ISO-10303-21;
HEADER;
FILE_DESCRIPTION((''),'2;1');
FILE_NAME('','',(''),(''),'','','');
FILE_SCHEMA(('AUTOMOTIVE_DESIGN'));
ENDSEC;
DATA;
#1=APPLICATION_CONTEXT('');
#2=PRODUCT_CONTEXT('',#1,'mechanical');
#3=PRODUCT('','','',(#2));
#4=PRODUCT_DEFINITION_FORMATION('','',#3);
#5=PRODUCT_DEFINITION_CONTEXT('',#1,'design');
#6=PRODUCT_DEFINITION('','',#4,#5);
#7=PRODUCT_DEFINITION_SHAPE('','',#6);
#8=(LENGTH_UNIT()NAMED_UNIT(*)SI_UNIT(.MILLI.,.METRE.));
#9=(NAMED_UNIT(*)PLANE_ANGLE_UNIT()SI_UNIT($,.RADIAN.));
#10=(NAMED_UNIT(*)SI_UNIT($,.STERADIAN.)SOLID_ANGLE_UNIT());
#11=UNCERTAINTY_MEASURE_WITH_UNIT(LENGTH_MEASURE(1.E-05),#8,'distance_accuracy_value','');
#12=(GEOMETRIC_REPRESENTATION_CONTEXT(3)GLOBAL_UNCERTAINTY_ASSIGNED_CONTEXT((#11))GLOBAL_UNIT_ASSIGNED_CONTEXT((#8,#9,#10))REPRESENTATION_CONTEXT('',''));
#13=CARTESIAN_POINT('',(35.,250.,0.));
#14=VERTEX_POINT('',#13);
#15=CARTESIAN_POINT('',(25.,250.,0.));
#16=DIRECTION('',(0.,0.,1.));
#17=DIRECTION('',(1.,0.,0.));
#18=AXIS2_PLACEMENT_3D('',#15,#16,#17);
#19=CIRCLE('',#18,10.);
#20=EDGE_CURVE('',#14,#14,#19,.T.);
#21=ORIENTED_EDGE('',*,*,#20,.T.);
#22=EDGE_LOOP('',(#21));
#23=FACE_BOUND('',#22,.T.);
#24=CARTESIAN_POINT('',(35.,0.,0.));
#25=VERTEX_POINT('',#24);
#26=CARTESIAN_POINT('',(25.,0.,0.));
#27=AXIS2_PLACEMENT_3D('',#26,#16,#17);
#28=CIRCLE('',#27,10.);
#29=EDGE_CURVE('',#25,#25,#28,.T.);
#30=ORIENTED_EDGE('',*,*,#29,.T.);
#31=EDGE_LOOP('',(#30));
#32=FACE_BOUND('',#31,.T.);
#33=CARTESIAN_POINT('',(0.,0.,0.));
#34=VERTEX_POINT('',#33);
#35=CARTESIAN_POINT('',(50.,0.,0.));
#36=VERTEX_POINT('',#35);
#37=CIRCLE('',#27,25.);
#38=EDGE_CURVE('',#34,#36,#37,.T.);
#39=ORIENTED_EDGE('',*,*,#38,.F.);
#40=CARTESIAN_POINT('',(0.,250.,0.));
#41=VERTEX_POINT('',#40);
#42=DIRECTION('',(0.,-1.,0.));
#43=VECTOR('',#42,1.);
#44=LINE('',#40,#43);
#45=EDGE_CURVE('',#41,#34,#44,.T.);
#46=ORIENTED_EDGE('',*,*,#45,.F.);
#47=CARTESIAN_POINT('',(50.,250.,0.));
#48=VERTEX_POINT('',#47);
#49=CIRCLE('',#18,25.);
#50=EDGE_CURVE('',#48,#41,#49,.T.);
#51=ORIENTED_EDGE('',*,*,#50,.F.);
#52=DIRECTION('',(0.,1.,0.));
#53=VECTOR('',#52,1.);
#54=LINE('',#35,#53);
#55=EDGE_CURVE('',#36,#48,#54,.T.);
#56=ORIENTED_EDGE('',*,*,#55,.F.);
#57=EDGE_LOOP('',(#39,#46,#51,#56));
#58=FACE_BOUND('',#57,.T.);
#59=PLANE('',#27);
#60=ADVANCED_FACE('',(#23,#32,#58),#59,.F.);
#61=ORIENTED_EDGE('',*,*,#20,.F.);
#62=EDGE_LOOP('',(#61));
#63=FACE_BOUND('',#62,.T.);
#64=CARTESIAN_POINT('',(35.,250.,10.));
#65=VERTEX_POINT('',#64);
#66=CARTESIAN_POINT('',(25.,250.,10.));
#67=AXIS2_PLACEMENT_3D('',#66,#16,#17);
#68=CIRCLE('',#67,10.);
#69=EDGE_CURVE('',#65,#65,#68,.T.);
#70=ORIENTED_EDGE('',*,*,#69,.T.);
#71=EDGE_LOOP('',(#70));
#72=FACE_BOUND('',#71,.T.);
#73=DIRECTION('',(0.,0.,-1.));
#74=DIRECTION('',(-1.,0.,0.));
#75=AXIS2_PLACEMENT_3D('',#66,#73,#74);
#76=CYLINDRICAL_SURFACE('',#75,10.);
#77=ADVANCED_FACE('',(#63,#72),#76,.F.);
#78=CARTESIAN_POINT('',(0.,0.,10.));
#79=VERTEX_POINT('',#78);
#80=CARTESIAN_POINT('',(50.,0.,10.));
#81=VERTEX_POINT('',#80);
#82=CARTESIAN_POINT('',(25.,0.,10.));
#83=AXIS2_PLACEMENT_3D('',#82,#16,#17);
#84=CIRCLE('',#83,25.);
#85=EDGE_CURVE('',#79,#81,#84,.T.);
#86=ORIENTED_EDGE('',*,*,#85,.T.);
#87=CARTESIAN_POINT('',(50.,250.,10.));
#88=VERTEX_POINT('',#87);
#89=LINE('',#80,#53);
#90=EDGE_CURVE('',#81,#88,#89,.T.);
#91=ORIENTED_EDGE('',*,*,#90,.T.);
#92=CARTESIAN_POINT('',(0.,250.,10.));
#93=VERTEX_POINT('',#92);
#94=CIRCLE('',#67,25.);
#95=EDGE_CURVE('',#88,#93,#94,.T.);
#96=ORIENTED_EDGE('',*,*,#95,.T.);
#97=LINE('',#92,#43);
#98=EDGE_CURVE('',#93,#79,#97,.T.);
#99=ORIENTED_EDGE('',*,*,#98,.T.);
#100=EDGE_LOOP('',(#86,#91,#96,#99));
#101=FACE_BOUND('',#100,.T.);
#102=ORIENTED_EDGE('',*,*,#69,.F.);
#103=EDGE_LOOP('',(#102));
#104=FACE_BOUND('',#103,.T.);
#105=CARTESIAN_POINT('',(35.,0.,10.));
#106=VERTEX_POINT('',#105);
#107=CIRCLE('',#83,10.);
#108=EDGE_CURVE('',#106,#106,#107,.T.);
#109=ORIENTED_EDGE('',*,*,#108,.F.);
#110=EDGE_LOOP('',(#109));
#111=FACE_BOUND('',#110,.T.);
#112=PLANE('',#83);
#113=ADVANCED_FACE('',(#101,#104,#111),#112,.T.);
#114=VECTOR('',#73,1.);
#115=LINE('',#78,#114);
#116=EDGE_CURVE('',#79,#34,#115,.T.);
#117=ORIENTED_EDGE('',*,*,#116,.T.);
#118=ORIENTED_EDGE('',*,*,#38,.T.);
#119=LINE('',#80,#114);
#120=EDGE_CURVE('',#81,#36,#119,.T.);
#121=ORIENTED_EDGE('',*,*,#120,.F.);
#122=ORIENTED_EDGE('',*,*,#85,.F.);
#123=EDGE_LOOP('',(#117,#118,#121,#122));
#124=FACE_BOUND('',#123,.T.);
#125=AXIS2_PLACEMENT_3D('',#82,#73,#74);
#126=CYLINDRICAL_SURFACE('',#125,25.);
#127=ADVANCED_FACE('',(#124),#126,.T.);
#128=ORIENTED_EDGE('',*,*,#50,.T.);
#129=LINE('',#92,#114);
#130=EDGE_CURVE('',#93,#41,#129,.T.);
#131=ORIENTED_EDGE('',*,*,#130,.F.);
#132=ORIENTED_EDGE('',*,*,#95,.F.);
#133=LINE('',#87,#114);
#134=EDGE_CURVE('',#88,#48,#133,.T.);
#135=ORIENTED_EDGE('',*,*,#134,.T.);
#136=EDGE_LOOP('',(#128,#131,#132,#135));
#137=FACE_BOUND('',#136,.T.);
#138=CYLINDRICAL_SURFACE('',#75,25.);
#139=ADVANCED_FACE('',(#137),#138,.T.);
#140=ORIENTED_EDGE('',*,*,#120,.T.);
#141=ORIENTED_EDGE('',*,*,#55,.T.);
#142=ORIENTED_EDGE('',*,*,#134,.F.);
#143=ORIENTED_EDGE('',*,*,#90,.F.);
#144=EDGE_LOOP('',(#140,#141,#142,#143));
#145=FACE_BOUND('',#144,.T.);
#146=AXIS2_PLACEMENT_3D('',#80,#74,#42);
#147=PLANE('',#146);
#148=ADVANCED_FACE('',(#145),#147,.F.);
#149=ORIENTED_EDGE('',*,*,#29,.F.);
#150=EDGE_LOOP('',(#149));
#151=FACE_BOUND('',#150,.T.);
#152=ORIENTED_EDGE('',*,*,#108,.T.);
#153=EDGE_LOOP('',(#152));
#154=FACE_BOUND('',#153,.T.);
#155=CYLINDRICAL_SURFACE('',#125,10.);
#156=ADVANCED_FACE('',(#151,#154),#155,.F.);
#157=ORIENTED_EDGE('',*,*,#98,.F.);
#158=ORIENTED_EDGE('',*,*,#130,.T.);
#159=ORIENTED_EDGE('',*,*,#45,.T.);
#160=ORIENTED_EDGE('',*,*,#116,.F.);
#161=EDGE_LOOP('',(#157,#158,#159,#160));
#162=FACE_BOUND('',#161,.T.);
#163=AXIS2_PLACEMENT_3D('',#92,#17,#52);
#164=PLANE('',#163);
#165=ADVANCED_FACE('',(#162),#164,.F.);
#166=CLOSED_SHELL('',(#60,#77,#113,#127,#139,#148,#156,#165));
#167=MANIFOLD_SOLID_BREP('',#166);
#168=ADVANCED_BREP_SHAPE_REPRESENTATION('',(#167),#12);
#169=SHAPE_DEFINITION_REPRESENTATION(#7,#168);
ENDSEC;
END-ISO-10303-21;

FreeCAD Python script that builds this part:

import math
import FreeCAD as App
import Part
import Sketcher
from FreeCAD import Vector
Q = App.Units.Quantity

doc = App.newDocument("Part")
body = doc.addObject("PartDesign::Body", "Body")

# Sketch on XY plane
sketch1 = body.newObject("Sketcher::SketchObject", "Sketch")
sketch1.AttachmentSupport = (doc.getObject("XY_Plane"), [""])
sketch1.MapMode = "FlatFace"
sketch1.addGeometry([
    Part.LineSegment(Vector(50, 0, 0), Vector(50, 250, 0)),  # 0
    Part.ArcOfCircle(Part.Circle(Vector(25, 250, 0), Vector(0, 0, 1), 25), math.radians(0), math.radians(180)),  # 1
    Part.LineSegment(Vector(0, 250, 0), Vector(0, 0, 0)),  # 2
    Part.ArcOfCircle(Part.Circle(Vector(25, 0, 0), Vector(0, 0, 1), 25), math.radians(180), math.radians(360)),  # 3
    Part.Circle(Vector(25, 0, 0), Vector(0, 0, 1), 10),  # 4
    Part.Circle(Vector(25, 250, 0), Vector(0, 0, 1), 10),  # 5
], False)
sketch1.addConstraint([
    Sketcher.Constraint("Tangent", 0, 2, 1, 1),
    Sketcher.Constraint("Tangent", 1, 2, 2, 1),
    Sketcher.Constraint("Tangent", 2, 2, 3, 1),
    Sketcher.Constraint("Tangent", 3, 2, 0, 1),
    Sketcher.Constraint("Vertical", 0),
    Sketcher.Constraint("Vertical", 2),
    Sketcher.Constraint("Coincident", 2, 2, -1, 1),
    Sketcher.Constraint("Coincident", 4, 3, 3, 3),
    Sketcher.Constraint("Coincident", 5, 3, 1, 3),
    Sketcher.Constraint("Equal", 4, 5),
    Sketcher.Constraint("Diameter", 4, Q("20 mm")),
    Sketcher.Constraint("Radius", 1, Q("25 mm")),
    Sketcher.Constraint("DistanceY", 0, 1, 0, 2, Q("250 mm")),
])
pad1 = body.newObject("PartDesign::Pad", "Pad")
pad1.Profile = sketch1
pad1.Length = 10

doc.recompute()
